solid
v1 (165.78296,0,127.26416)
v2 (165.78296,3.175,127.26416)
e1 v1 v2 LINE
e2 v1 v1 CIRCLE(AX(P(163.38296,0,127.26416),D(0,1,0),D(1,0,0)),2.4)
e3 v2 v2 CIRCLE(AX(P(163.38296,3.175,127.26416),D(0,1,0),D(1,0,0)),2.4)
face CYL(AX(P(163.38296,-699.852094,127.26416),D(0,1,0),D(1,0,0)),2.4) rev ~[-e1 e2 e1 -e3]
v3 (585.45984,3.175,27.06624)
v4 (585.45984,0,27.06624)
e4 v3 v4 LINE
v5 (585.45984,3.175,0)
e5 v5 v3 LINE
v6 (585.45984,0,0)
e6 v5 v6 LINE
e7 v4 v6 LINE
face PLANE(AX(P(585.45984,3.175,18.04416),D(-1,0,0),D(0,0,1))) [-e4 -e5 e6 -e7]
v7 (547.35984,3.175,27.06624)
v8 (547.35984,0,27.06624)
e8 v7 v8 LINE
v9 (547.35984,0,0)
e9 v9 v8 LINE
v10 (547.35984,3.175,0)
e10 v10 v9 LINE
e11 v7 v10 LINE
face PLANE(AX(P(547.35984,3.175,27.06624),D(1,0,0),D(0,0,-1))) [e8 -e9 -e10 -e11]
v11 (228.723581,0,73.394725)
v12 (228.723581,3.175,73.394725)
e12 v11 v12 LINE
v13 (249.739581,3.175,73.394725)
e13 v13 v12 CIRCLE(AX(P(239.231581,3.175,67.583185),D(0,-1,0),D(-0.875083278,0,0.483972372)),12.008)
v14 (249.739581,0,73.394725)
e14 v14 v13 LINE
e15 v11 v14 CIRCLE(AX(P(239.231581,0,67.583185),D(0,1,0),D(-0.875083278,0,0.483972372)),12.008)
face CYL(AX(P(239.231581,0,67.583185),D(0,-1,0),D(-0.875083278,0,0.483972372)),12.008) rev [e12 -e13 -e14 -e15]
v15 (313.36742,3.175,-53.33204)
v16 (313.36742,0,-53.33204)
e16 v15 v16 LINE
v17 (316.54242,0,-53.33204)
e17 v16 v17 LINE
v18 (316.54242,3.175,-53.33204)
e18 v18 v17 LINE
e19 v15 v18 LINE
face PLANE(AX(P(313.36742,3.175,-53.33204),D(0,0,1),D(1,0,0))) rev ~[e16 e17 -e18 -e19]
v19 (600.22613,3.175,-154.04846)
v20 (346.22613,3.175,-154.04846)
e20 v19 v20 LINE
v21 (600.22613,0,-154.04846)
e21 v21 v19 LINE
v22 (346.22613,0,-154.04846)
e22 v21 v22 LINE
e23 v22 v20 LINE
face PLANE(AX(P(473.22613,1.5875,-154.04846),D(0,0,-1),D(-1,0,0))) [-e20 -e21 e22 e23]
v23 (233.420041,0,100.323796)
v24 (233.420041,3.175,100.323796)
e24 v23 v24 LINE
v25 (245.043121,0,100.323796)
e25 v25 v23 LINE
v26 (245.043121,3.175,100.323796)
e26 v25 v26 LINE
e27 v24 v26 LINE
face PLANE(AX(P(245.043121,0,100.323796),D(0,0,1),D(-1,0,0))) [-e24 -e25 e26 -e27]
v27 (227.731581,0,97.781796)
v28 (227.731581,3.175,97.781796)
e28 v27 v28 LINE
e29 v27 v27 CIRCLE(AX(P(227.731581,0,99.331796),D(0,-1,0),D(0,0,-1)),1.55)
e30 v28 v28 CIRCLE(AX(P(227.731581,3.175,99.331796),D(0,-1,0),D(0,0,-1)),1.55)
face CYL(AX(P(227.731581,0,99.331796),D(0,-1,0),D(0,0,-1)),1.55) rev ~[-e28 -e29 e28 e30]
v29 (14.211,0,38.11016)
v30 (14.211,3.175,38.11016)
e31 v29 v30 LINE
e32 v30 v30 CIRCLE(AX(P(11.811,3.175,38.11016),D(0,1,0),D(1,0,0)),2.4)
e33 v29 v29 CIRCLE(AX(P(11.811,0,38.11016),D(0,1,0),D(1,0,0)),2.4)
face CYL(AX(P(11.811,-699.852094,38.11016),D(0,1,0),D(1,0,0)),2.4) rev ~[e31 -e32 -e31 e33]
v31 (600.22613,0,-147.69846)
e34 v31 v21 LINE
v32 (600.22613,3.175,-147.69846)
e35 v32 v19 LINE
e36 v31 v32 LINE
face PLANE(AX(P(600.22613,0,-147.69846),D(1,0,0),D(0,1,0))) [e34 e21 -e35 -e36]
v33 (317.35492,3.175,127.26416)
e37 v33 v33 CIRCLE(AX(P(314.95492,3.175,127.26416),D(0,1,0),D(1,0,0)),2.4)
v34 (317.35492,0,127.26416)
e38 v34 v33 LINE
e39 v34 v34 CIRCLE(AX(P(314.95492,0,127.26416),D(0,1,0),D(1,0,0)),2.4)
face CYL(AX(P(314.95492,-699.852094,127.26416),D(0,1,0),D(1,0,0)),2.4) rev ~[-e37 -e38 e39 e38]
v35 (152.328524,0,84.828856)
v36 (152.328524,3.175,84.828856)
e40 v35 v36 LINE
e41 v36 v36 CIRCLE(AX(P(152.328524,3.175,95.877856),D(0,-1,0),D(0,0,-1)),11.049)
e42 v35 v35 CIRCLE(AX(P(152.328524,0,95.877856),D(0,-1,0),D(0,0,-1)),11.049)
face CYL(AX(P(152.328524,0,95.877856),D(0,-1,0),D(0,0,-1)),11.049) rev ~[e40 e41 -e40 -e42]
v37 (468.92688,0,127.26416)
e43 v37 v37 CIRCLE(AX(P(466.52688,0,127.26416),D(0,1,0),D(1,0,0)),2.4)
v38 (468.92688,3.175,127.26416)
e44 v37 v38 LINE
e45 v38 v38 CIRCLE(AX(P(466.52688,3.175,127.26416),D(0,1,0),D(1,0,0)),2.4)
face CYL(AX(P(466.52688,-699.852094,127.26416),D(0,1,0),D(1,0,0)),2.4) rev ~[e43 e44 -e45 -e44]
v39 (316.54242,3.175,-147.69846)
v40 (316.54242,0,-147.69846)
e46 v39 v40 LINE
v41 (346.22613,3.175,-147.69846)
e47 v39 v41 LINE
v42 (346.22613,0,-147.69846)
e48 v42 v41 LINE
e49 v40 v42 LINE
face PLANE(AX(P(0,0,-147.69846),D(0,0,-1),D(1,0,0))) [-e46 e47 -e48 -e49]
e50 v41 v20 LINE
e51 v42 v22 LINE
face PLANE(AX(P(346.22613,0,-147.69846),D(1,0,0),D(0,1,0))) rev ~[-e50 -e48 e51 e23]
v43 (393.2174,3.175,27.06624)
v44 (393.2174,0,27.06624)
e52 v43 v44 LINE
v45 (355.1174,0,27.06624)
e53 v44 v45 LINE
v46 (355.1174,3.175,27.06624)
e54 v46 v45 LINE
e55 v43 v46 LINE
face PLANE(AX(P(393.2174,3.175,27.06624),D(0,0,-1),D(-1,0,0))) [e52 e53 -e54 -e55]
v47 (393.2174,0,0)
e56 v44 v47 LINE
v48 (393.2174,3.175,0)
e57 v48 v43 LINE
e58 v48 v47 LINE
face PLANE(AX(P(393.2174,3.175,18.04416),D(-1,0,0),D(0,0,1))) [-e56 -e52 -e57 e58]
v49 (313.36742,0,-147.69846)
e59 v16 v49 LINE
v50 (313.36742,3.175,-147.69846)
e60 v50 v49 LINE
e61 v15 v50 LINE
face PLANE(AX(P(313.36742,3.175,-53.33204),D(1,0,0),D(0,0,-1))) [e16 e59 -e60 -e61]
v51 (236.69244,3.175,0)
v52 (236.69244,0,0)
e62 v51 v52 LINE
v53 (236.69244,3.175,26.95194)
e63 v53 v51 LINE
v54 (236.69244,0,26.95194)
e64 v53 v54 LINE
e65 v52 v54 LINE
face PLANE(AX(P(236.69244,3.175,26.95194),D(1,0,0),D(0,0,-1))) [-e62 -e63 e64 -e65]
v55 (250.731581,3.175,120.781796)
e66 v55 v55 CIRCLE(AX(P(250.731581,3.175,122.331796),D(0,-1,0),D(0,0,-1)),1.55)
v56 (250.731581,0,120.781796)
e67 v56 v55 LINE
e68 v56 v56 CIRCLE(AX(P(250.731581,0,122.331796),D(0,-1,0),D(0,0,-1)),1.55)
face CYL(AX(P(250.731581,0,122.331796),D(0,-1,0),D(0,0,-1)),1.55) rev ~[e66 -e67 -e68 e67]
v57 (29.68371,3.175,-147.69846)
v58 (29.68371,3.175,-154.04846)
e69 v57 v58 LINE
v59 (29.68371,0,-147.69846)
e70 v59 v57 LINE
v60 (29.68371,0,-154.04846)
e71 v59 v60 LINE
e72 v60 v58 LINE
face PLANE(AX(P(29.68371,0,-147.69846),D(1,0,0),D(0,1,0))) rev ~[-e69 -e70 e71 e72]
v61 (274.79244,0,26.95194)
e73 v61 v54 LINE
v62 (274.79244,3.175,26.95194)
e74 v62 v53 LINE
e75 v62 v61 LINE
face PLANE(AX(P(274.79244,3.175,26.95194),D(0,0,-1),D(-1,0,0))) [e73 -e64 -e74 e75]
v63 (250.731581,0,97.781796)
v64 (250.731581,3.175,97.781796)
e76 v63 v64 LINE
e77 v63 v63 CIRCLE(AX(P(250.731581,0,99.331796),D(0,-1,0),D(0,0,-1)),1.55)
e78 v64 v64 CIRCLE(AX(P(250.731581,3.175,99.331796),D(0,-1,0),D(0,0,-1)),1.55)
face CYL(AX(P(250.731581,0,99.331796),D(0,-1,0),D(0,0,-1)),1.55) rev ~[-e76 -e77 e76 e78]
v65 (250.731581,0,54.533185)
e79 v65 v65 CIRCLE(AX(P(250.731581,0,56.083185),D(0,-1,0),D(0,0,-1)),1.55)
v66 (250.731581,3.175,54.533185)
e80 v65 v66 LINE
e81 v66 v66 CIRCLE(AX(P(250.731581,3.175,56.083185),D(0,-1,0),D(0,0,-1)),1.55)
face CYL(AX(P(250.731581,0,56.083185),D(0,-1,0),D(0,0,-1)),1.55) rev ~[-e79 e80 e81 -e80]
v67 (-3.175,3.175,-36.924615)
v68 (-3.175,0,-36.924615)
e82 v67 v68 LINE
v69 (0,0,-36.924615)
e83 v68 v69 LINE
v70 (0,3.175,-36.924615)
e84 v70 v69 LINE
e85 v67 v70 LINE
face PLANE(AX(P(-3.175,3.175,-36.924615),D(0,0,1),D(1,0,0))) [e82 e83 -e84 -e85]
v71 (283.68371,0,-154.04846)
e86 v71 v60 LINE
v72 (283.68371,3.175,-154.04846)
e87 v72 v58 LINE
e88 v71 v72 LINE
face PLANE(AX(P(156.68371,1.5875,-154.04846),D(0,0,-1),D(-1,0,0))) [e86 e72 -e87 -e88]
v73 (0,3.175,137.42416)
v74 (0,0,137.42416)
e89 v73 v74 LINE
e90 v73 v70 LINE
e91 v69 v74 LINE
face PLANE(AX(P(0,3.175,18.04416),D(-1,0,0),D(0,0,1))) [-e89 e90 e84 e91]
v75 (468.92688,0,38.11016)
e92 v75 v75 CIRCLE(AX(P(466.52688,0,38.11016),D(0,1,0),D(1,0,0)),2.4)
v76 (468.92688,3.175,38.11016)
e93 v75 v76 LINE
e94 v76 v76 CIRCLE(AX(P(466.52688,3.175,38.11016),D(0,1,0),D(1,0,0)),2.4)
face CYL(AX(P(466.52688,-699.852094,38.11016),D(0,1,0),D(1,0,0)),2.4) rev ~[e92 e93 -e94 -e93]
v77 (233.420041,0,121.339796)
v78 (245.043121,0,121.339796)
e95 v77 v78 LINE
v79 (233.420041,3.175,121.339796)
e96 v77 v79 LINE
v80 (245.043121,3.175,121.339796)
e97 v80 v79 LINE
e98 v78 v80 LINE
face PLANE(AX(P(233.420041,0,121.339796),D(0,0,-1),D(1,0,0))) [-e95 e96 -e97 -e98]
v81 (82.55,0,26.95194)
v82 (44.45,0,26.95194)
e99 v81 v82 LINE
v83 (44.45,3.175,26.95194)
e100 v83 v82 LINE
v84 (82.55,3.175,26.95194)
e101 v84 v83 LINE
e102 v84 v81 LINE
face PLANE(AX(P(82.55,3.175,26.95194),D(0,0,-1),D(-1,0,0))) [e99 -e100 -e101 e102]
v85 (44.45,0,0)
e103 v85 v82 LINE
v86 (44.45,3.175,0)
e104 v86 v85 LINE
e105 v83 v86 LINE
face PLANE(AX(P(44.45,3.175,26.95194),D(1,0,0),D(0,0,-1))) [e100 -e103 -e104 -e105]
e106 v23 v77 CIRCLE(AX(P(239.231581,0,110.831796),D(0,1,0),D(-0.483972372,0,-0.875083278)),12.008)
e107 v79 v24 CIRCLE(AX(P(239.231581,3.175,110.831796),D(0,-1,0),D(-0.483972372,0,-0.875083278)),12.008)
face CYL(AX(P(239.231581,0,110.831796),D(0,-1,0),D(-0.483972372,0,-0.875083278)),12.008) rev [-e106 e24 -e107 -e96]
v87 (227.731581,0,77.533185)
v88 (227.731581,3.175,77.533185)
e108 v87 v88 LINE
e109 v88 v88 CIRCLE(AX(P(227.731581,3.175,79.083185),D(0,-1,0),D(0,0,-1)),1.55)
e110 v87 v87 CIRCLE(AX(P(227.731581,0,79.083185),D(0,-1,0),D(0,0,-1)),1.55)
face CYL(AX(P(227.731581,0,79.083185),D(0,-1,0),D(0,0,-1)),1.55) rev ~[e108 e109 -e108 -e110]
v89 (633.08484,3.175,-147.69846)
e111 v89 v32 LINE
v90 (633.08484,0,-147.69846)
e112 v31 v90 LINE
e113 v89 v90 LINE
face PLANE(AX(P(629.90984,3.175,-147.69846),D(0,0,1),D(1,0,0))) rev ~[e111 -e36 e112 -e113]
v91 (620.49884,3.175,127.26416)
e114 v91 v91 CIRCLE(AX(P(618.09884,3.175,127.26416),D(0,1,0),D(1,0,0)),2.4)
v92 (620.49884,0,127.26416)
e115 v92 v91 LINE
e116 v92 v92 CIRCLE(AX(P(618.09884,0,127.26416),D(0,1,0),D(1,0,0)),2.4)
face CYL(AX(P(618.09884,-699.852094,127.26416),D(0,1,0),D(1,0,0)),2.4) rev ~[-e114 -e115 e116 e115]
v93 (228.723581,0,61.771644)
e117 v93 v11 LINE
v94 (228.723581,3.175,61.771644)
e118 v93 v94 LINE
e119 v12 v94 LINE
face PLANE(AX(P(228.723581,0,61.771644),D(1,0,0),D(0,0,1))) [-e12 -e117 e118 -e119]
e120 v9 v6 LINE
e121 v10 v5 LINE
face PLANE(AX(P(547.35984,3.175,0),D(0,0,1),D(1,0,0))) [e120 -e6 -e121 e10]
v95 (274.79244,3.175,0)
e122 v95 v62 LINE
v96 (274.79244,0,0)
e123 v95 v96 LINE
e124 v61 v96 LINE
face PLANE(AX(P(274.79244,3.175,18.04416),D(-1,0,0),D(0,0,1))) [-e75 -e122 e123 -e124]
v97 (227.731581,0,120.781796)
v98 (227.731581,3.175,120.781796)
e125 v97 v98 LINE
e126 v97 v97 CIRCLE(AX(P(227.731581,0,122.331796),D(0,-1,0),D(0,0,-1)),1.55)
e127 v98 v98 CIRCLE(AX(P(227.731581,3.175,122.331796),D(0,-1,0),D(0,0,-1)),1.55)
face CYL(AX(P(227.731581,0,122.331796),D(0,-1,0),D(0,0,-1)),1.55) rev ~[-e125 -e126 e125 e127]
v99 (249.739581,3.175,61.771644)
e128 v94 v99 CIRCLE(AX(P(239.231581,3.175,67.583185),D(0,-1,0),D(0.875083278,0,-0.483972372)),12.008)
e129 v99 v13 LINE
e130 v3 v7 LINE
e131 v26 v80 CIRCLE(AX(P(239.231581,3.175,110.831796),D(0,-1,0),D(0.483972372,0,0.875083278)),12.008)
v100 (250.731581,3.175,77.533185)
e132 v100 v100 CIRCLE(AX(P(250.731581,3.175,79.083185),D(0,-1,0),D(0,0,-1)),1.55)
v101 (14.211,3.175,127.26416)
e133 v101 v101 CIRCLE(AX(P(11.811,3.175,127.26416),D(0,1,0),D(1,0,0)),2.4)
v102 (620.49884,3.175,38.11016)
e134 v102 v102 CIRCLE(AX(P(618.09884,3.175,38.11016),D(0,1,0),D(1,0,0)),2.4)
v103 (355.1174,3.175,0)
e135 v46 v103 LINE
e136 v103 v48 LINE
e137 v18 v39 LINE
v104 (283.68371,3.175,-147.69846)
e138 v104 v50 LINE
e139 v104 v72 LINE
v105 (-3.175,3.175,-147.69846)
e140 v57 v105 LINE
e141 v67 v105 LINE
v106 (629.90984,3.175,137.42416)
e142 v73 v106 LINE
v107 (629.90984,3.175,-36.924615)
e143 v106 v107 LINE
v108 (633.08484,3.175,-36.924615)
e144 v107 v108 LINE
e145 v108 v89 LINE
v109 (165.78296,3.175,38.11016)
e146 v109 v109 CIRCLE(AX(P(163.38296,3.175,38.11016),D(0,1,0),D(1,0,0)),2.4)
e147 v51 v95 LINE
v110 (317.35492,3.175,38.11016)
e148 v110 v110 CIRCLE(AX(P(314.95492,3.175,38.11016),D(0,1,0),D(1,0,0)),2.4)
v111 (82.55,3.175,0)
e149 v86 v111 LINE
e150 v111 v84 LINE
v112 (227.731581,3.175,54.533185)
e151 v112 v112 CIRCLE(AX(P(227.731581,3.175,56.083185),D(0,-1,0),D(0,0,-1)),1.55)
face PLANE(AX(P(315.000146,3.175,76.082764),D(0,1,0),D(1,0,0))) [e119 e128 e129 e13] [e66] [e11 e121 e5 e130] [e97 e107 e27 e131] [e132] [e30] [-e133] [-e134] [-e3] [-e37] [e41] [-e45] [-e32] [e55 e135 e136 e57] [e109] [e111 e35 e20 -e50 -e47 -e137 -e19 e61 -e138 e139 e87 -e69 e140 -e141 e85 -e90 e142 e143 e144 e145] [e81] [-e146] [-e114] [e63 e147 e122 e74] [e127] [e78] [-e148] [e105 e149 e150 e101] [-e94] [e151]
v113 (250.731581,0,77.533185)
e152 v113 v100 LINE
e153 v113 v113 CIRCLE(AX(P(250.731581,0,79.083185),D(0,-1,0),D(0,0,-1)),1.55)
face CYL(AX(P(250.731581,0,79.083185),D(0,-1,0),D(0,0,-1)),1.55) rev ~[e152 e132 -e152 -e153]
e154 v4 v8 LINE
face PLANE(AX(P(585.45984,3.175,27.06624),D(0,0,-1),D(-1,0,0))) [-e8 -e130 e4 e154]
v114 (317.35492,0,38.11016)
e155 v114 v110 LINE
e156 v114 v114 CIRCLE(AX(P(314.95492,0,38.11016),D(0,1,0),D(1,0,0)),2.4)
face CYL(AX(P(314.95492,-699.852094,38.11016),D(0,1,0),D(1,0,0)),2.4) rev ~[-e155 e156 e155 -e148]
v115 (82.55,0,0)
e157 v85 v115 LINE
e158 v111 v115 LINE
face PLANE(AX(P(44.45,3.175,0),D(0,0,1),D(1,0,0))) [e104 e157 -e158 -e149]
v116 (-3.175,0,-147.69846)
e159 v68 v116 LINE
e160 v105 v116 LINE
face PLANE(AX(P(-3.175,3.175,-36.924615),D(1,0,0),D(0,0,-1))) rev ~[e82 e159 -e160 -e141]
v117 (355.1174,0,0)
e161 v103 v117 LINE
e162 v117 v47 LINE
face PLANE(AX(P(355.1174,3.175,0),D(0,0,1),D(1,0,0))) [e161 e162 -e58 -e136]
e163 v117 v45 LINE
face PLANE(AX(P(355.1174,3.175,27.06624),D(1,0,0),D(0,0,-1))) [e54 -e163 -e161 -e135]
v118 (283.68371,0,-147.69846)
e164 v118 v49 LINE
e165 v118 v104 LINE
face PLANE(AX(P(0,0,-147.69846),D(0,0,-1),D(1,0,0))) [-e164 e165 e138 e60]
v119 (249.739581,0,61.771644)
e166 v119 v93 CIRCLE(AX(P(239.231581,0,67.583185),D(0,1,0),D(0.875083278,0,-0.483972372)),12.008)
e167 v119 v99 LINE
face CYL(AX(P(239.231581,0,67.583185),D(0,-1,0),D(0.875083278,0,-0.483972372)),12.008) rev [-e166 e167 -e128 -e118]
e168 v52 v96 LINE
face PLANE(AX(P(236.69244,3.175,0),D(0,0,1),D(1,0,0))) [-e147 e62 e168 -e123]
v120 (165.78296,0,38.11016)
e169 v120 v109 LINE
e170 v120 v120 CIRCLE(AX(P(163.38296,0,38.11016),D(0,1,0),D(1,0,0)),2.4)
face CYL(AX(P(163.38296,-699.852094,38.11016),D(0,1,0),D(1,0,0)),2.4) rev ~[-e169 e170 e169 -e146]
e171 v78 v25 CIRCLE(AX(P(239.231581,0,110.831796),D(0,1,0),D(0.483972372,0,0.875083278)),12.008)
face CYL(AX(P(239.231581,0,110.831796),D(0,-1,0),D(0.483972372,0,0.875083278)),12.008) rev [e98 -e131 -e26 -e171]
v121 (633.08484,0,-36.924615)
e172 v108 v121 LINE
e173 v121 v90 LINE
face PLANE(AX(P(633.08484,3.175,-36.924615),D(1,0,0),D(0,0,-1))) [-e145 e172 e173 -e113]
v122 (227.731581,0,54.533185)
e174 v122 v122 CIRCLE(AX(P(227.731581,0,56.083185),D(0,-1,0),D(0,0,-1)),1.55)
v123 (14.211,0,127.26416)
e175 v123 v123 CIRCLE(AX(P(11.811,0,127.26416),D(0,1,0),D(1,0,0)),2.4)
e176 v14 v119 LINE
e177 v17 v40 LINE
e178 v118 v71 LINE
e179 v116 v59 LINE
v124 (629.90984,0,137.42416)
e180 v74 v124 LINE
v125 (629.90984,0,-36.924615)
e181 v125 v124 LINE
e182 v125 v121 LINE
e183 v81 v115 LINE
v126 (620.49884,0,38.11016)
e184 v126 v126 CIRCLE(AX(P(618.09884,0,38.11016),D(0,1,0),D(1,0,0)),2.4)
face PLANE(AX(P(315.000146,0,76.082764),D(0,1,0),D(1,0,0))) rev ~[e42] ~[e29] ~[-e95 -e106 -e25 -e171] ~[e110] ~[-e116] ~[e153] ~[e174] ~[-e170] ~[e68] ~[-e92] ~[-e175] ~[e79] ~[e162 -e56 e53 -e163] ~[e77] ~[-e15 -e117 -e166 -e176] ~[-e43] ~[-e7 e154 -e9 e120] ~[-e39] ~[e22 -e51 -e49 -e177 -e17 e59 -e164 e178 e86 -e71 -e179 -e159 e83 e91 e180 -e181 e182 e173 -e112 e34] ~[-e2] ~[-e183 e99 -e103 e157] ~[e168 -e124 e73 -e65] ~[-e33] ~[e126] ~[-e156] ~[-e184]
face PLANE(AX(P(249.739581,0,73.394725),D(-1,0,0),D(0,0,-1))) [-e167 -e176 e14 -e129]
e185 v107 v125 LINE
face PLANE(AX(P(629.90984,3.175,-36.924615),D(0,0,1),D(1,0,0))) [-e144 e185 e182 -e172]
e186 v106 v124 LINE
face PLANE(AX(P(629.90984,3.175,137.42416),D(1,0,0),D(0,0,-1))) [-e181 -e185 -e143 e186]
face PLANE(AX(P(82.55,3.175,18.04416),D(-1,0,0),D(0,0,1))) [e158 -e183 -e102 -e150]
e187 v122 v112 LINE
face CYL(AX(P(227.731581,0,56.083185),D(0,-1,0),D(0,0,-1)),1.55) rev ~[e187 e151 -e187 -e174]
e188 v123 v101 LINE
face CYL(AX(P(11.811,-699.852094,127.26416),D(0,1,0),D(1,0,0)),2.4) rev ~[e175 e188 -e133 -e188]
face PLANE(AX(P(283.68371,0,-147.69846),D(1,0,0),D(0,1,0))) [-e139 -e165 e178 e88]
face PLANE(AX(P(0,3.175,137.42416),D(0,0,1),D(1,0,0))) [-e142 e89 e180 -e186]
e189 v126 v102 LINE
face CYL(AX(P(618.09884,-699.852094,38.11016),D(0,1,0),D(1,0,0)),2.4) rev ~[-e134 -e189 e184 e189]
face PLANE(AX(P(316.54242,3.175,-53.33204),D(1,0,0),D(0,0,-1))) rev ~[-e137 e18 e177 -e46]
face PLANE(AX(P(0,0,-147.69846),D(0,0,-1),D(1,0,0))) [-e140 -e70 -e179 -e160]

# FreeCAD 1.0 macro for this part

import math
import FreeCAD as App
import Part
import Sketcher
from FreeCAD import Vector
Q = App.Units.Quantity

doc = App.newDocument("Part")
body = doc.addObject("PartDesign::Body", "Body")

# Sketch on XZ plane
sketch1 = body.newObject("Sketcher::SketchObject", "Sketch")
sketch1.AttachmentSupport = (doc.getObject("XZ_Plane"), [""])
sketch1.MapMode = "FlatFace"
sketch1.addGeometry([
    Part.LineSegment(Vector(0, -148, 0), Vector(0, 0, 0)),
    Part.LineSegment(Vector(0, 0, 0), Vector(630, 0, 0)),
    Part.LineSegment(Vector(630, 0, 0), Vector(630, -148, 0)),
    Part.LineSegment(Vector(630, -148, 0), Vector(0, -148, 0)),
], False)
sketch1.addConstraint([
    Sketcher.Constraint("Coincident", 0, 2, 1, 1),
    Sketcher.Constraint("Coincident", 1, 2, 2, 1),
    Sketcher.Constraint("Coincident", 2, 2, 3, 1),
    Sketcher.Constraint("Coincident", 3, 2, 0, 1),
    Sketcher.Constraint("Vertical", 0),
    Sketcher.Constraint("Horizontal", 1),
    Sketcher.Constraint("Vertical", 2),
    Sketcher.Constraint("Horizontal", 3),
    Sketcher.Constraint("Coincident", 0, 2, -1, 1),
    Sketcher.Constraint("DistanceX", 1, 1, 1, 2, Q("24.7996 in")),
    Sketcher.Constraint("DistanceY", 0, 1, 0, 2, Q("5.8149 in")),
])
pad1 = body.newObject("PartDesign::Pad", "Pad")
pad1.Profile = sketch1
pad1.Length = Q("0.125 in")
pad1.Reversed = True

# Sketch on XY plane
sketch2 = body.newObject("Sketcher::SketchObject", "Sketch001")
sketch2.AttachmentSupport = (doc.getObject("XY_Plane"), [""])
sketch2.MapMode = "FlatFace"
sketch2.AttachmentOffset = App.Placement(Vector(0, 0, -5.8149 * 25.4), App.Rotation())
sketch2.addGeometry([
    Part.LineSegment(Vector(600.2, 3.2, 0), Vector(600.2, 0, 0)),  # 0
    Part.LineSegment(Vector(600.2, 0, 0), Vector(346.2, 0, 0)),  # 1
    Part.LineSegment(Vector(346.2, 0, 0), Vector(346.2, 3.2, 0)),  # 2
    Part.LineSegment(Vector(346.2, 3.2, 0), Vector(600.2, 3.2, 0)),  # 3
    Part.LineSegment(Vector(283.7, 3.2, 0), Vector(283.7, 0, 0)),  # 4
    Part.LineSegment(Vector(283.7, 0, 0), Vector(29.7, 0, 0)),  # 5
    Part.LineSegment(Vector(29.7, 0, 0), Vector(29.7, 3.2, 0)),  # 6
    Part.LineSegment(Vector(29.7, 3.2, 0), Vector(283.7, 3.2, 0)),  # 7
], False)
sketch2.addConstraint([
    Sketcher.Constraint("Coincident", 0, 2, 1, 1),
    Sketcher.Constraint("Coincident", 1, 2, 2, 1),
    Sketcher.Constraint("Coincident", 2, 2, 3, 1),
    Sketcher.Constraint("Coincident", 3, 2, 0, 1),
    Sketcher.Constraint("Coincident", 4, 2, 5, 1),
    Sketcher.Constraint("Coincident", 5, 2, 6, 1),
    Sketcher.Constraint("Coincident", 6, 2, 7, 1),
    Sketcher.Constraint("Coincident", 7, 2, 4, 1),
    Sketcher.Constraint("Vertical", 0),
    Sketcher.Constraint("Horizontal", 1),
    Sketcher.Constraint("Vertical", 2),
    Sketcher.Constraint("Horizontal", 3),
    Sketcher.Constraint("Vertical", 4),
    Sketcher.Constraint("Horizontal", 5),
    Sketcher.Constraint("Vertical", 6),
    Sketcher.Constraint("Horizontal", 7),
    Sketcher.Constraint("PointOnObject", 0, 2, -1),
    Sketcher.Constraint("PointOnObject", 4, 2, -1),
    Sketcher.Constraint("Horizontal", 3, 2, 6, 2),
    Sketcher.Constraint("Equal", 3, 5),
    Sketcher.Constraint("DistanceX", 1, 2, 1, 1, Q("10 in")),
    Sketcher.Constraint("DistanceY", 0, 2, 0, 1, Q("0.125 in")),
    Sketcher.Constraint("DistanceX", 4, 2, 1, 2, Q("2.4623 in")),
    Sketcher.Constraint("DistanceX", -1, 1, 0, 2, Q("600.22613 mm")),
])
pad2 = body.newObject("PartDesign::Pad", "Pad001")
pad2.Profile = sketch2
pad2.Length = Q("0.25 in")
pad2.Reversed = True

# Sketch on XZ plane
sketch3 = body.newObject("Sketcher::SketchObject", "Sketch002")
sketch3.AttachmentSupport = (doc.getObject("XZ_Plane"), [""])
sketch3.MapMode = "FlatFace"
sketch3.AttachmentOffset = App.Placement(Vector(0, 0, -0.125 * 25.4), App.Rotation())
sketch3.addGeometry([
    Part.LineSegment(Vector(313.4, -242.1, 0), Vector(313.4, -53.3, 0)),
    Part.LineSegment(Vector(313.4, -53.3, 0), Vector(316.5, -53.3, 0)),
    Part.LineSegment(Vector(316.5, -53.3, 0), Vector(316.5, -242.1, 0)),
    Part.LineSegment(Vector(316.5, -242.1, 0), Vector(313.4, -242.1, 0)),
], False)
sketch3.addConstraint([
    Sketcher.Constraint("Coincident", 0, 2, 1, 1),
    Sketcher.Constraint("Coincident", 1, 2, 2, 1),
    Sketcher.Constraint("Coincident", 2, 2, 3, 1),
    Sketcher.Constraint("Coincident", 3, 2, 0, 1),
    Sketcher.Constraint("Vertical", 0),
    Sketcher.Constraint("Horizontal", 1),
    Sketcher.Constraint("Vertical", 2),
    Sketcher.Constraint("Horizontal", 3),
    Sketcher.Constraint("DistanceX", 1, 1, 1, 2, Q("0.125 in")),
    Sketcher.Constraint("DistanceX", -1, 1, 0, 2, Q("12.3373 in")),
    Sketcher.Constraint("DistanceY", 0, 1, 0, 2, Q("188.73284 mm")),
    Sketcher.Constraint("DistanceY", 0, 2, -1, 1, Q("53.33204 mm")),
])
pocket1 = body.newObject("PartDesign::Pocket", "Pocket")
pocket1.Profile = sketch3
pocket1.Length = Q("0.125 in")
pocket1.Reversed = True

# Sketch on XZ plane
sketch4 = body.newObject("Sketcher::SketchObject", "Sketch003")
sketch4.AttachmentSupport = (doc.getObject("XZ_Plane"), [""])
sketch4.MapMode = "FlatFace"
sketch4.AttachmentOffset = App.Placement(Vector(0, 0, -0.125 * 25.4), App.Rotation())
sketch4.addGeometry([
    Part.LineSegment(Vector(629.9, -147.7, 0), Vector(629.9, -36.9, 0)),  # 0
    Part.LineSegment(Vector(629.9, -36.9, 0), Vector(633.1, -36.9, 0)),  # 1
    Part.LineSegment(Vector(633.1, -36.9, 0), Vector(633.1, -147.7, 0)),  # 2
    Part.LineSegment(Vector(633.1, -147.7, 0), Vector(629.9, -147.7, 0)),  # 3
    Part.LineSegment(Vector(-3.2, -147.7, 0), Vector(-3.2, -36.9, 0)),  # 4
    Part.LineSegment(Vector(-3.2, -36.9, 0), Vector(0, -36.9, 0)),  # 5
    Part.LineSegment(Vector(0, -36.9, 0), Vector(0, -147.7, 0)),  # 6
    Part.LineSegment(Vector(0, -147.7, 0), Vector(-3.2, -147.7, 0)),  # 7
], False)
sketch4.addConstraint([
    Sketcher.Constraint("Coincident", 0, 2, 1, 1),
    Sketcher.Constraint("Coincident", 1, 2, 2, 1),
    Sketcher.Constraint("Coincident", 2, 2, 3, 1),
    Sketcher.Constraint("Coincident", 3, 2, 0, 1),
    Sketcher.Constraint("Coincident", 4, 2, 5, 1),
    Sketcher.Constraint("Coincident", 5, 2, 6, 1),
    Sketcher.Constraint("Coincident", 6, 2, 7, 1),
    Sketcher.Constraint("Coincident", 7, 2, 4, 1),
    Sketcher.Constraint("Vertical", 0),
    Sketcher.Constraint("Horizontal", 1),
    Sketcher.Constraint("Vertical", 2),
    Sketcher.Constraint("Horizontal", 3),
    Sketcher.Constraint("Vertical", 4),
    Sketcher.Constraint("Horizontal", 5),
    Sketcher.Constraint("Vertical", 6),
    Sketcher.Constraint("Horizontal", 7),
    Sketcher.Constraint("PointOnObject", 5, 2, -2),
    Sketcher.Constraint("Horizontal", 1, 2, 4, 2),
    Sketcher.Constraint("Horizontal", 3, 2, 6, 2),
    Sketcher.Constraint("Equal", 3, 5),
    Sketcher.Constraint("DistanceX", 1, 1, 1, 2, Q("0.125 in")),
    Sketcher.Constraint("DistanceX", -1, 1, 0, 2, Q("24.7996 in")),
    Sketcher.Constraint("DistanceY", 2, 2, -1, 1, Q("5.8149 in")),
    Sketcher.Constraint("DistanceY", 0, 1, 0, 2, Q("110.773845 mm")),
])
pad3 = body.newObject("PartDesign::Pad", "Pad002")
pad3.Profile = sketch4
pad3.Length = Q("0.125 in")

# Sketch on XZ plane
sketch5 = body.newObject("Sketcher::SketchObject", "Sketch004")
sketch5.AttachmentSupport = (doc.getObject("XZ_Plane"), [""])
sketch5.MapMode = "FlatFace"
sketch5.AttachmentOffset = App.Placement(Vector(0, 0, -0.125 * 25.4), App.Rotation())
sketch5.addGeometry([
    Part.LineSegment(Vector(0, 0, 0), Vector(0, 18, 0)),
    Part.LineSegment(Vector(0, 18, 0), Vector(630, 18, 0)),
    Part.LineSegment(Vector(630, 18, 0), Vector(630, 0, 0)),
    Part.LineSegment(Vector(630, 0, 0), Vector(0, 0, 0)),
], False)
sketch5.addConstraint([
    Sketcher.Constraint("Coincident", 0, 2, 1, 1),
    Sketcher.Constraint("Coincident", 1, 2, 2, 1),
    Sketcher.Constraint("Coincident", 2, 2, 3, 1),
    Sketcher.Constraint("Coincident", 3, 2, 0, 1),
    Sketcher.Constraint("Vertical", 0),
    Sketcher.Constraint("Horizontal", 1),
    Sketcher.Constraint("Vertical", 2),
    Sketcher.Constraint("Horizontal", 3),
    Sketcher.Constraint("Coincident", 3, 2, -1, 1),
    Sketcher.Constraint("DistanceX", 1, 1, 1, 2, Q("24.7996 in")),
    Sketcher.Constraint("DistanceY", 0, 1, 0, 2, Q("0.7104 in")),
])
pad4 = body.newObject("PartDesign::Pad", "Pad003")
pad4.Profile = sketch5
pad4.Length = Q("0.125 in")

# Sketch on XZ plane
sketch6 = body.newObject("Sketcher::SketchObject", "Sketch005")
sketch6.AttachmentSupport = (doc.getObject("XZ_Plane"), [""])
sketch6.MapMode = "FlatFace"
sketch6.AttachmentOffset = App.Placement(Vector(0, 0, -0.125 * 25.4), App.Rotation())
sketch6.addGeometry([
    Part.LineSegment(Vector(355, 0, 0), Vector(355, 18, 0)),  # 0
    Part.LineSegment(Vector(355, 18, 0), Vector(393, 18, 0)),  # 1
    Part.LineSegment(Vector(393, 18, 0), Vector(393, 0, 0)),  # 2
    Part.LineSegment(Vector(393, 0, 0), Vector(355, 0, 0)),  # 3
    Part.LineSegment(Vector(237, 0, 0), Vector(237, 18, 0)),  # 4
    Part.LineSegment(Vector(237, 18, 0), Vector(275, 18, 0)),  # 5
    Part.LineSegment(Vector(275, 18, 0), Vector(275, 0, 0)),  # 6
    Part.LineSegment(Vector(275, 0, 0), Vector(237, 0, 0)),  # 7
    Part.LineSegment(Vector(547, 0, 0), Vector(547, 36, 0)),  # 8
    Part.LineSegment(Vector(547, 36, 0), Vector(585, 36, 0)),  # 9
    Part.LineSegment(Vector(585, 36, 0), Vector(585, 0, 0)),  # 10
    Part.LineSegment(Vector(585, 0, 0), Vector(547, 0, 0)),  # 11
    Part.LineSegment(Vector(44, 0, 0), Vector(44, 36, 0)),  # 12
    Part.LineSegment(Vector(44, 36, 0), Vector(83, 36, 0)),  # 13
    Part.LineSegment(Vector(83, 36, 0), Vector(83, 0, 0)),  # 14
    Part.LineSegment(Vector(83, 0, 0), Vector(44, 0, 0)),  # 15
], False)
sketch6.addConstraint([
    Sketcher.Constraint("Coincident", 0, 2, 1, 1),
    Sketcher.Constraint("Coincident", 1, 2, 2, 1),
    Sketcher.Constraint("Coincident", 2, 2, 3, 1),
    Sketcher.Constraint("Coincident", 3, 2, 0, 1),
    Sketcher.Constraint("Coincident", 4, 2, 5, 1),
    Sketcher.Constraint("Coincident", 5, 2, 6, 1),
    Sketcher.Constraint("Coincident", 6, 2, 7, 1),
    Sketcher.Constraint("Coincident", 7, 2, 4, 1),
    Sketcher.Constraint("Coincident", 8, 2, 9, 1),
    Sketcher.Constraint("Coincident", 9, 2, 10, 1),
    Sketcher.Constraint("Coincident", 10, 2, 11, 1),
    Sketcher.Constraint("Coincident", 11, 2, 8, 1),
    Sketcher.Constraint("Coincident", 12, 2, 13, 1),
    Sketcher.Constraint("Coincident", 13, 2, 14, 1),
    Sketcher.Constraint("Coincident", 14, 2, 15, 1),
    Sketcher.Constraint("Coincident", 15, 2, 12, 1),
    Sketcher.Constraint("Vertical", 0),
    Sketcher.Constraint("Horizontal", 1),
    Sketcher.Constraint("Vertical", 2),
    Sketcher.Constraint("Horizontal", 3),
    Sketcher.Constraint("Vertical", 4),
    Sketcher.Constraint("Horizontal", 5),
    Sketcher.Constraint("Vertical", 6),
    Sketcher.Constraint("Horizontal", 7),
    Sketcher.Constraint("Vertical", 8),
    Sketcher.Constraint("Horizontal", 9),
    Sketcher.Constraint("Vertical", 10),
    Sketcher.Constraint("Horizontal", 11),
    Sketcher.Constraint("Vertical", 12),
    Sketcher.Constraint("Horizontal", 13),
    Sketcher.Constraint("Vertical", 14),
    Sketcher.Constraint("Horizontal", 15),
    Sketcher.Constraint("PointOnObject", 2, 2, -1),
    Sketcher.Constraint("PointOnObject", 6, 2, -1),
    Sketcher.Constraint("PointOnObject", 10, 2, -1),
    Sketcher.Constraint("PointOnObject", 14, 2, -1),
    Sketcher.Constraint("Horizontal", 1, 2, 4, 2),
    Sketcher.Constraint("Horizontal", 9, 2, 12, 2),
    Sketcher.Constraint("Equal", 3, 5),
    Sketcher.Constraint("Equal", 7, 9),
    Sketcher.Constraint("Equal", 11, 13),
    Sketcher.Constraint("DistanceX", 1, 1, 1, 2, Q("1.5 in")),
    Sketcher.Constraint("DistanceX", -1, 1, 12, 2, Q("1.75 in")),
    Sketcher.Constraint("DistanceY", 0, 1, 0, 2, Q("0.7104 in")),
    Sketcher.Constraint("DistanceY", 8, 1, 8, 2, Q("1.4208 in")),
    Sketcher.Constraint("DistanceX", -1, 1, 0, 2, Q("13.981 in")),
    Sketcher.Constraint("DistanceX", 5, 2, 8, 2, Q("10.731 in")),
    Sketcher.Constraint("DistanceX", -1, 1, 4, 2, Q("9.3186 in")),
])
pocket2 = body.newObject("PartDesign::Pocket", "Pocket001")
pocket2.Profile = sketch6
pocket2.Type = "ThroughAll"
pocket2.Reversed = True

# Sketch on XZ plane
sketch7 = body.newObject("Sketcher::SketchObject", "Sketch006")
sketch7.AttachmentSupport = (doc.getObject("XZ_Plane"), [""])
sketch7.MapMode = "FlatFace"
sketch7.AttachmentOffset = App.Placement(Vector(0, 0, -0.125 * 25.4), App.Rotation())
sketch7.addGeometry([
    Part.LineSegment(Vector(0, 18, 0), Vector(0, 137, 0)),  # 0
    Part.LineSegment(Vector(0, 137, 0), Vector(630, 137, 0)),  # 1
    Part.LineSegment(Vector(630, 137, 0), Vector(630, 18, 0)),  # 2
    Part.LineSegment(Vector(630, 18, 0), Vector(585, 18, 0)),  # 3
    Part.LineSegment(Vector(585, 18, 0), Vector(585, 27, 0)),  # 4
    Part.LineSegment(Vector(585, 27, 0), Vector(547, 27, 0)),  # 5
    Part.LineSegment(Vector(547, 27, 0), Vector(547, 18, 0)),  # 6
    Part.LineSegment(Vector(547, 18, 0), Vector(393, 18, 0)),  # 7
    Part.LineSegment(Vector(393, 18, 0), Vector(393, 27, 0)),  # 8
    Part.LineSegment(Vector(393, 27, 0), Vector(355, 27, 0)),  # 9
    Part.LineSegment(Vector(355, 27, 0), Vector(355, 18, 0)),  # 10
    Part.LineSegment(Vector(355, 18, 0), Vector(275, 18, 0)),  # 11
    Part.LineSegment(Vector(275, 18, 0), Vector(275, 27, 0)),  # 12
    Part.LineSegment(Vector(275, 27, 0), Vector(237, 27, 0)),  # 13
    Part.LineSegment(Vector(237, 27, 0), Vector(237, 18, 0)),  # 14
    Part.LineSegment(Vector(237, 18, 0), Vector(83, 18, 0)),  # 15
    Part.LineSegment(Vector(83, 18, 0), Vector(83, 27, 0)),  # 16
    Part.LineSegment(Vector(83, 27, 0), Vector(44, 27, 0)),  # 17
    Part.LineSegment(Vector(44, 27, 0), Vector(44, 18, 0)),  # 18
    Part.LineSegment(Vector(44, 18, 0), Vector(0, 18, 0)),  # 19
], False)
sketch7.addConstraint([
    Sketcher.Constraint("Coincident", 0, 2, 1, 1),
    Sketcher.Constraint("Coincident", 1, 2, 2, 1),
    Sketcher.Constraint("Coincident", 2, 2, 3, 1),
    Sketcher.Constraint("Coincident", 3, 2, 4, 1),
    Sketcher.Constraint("Coincident", 4, 2, 5, 1),
    Sketcher.Constraint("Coincident", 5, 2, 6, 1),
    Sketcher.Constraint("Coincident", 6, 2, 7, 1),
    Sketcher.Constraint("Coincident", 7, 2, 8, 1),
    Sketcher.Constraint("Coincident", 8, 2, 9, 1),
    Sketcher.Constraint("Coincident", 9, 2, 10, 1),
    Sketcher.Constraint("Coincident", 10, 2, 11, 1),
    Sketcher.Constraint("Coincident", 11, 2, 12, 1),
    Sketcher.Constraint("Coincident", 12, 2, 13, 1),
    Sketcher.Constraint("Coincident", 13, 2, 14, 1),
    Sketcher.Constraint("Coincident", 14, 2, 15, 1),
    Sketcher.Constraint("Coincident", 15, 2, 16, 1),
    Sketcher.Constraint("Coincident", 16, 2, 17, 1),
    Sketcher.Constraint("Coincident", 17, 2, 18, 1),
    Sketcher.Constraint("Coincident", 18, 2, 19, 1),
    Sketcher.Constraint("Coincident", 19, 2, 0, 1),
    Sketcher.Constraint("Vertical", 0),
    Sketcher.Constraint("Horizontal", 1),
    Sketcher.Constraint("Vertical", 2),
    Sketcher.Constraint("Horizontal", 3),
    Sketcher.Constraint("Vertical", 4),
    Sketcher.Constraint("Horizontal", 5),
    Sketcher.Constraint("Vertical", 6),
    Sketcher.Constraint("Horizontal", 7),
    Sketcher.Constraint("Vertical", 8),
    Sketcher.Constraint("Horizontal", 9),
    Sketcher.Constraint("Vertical", 10),
    Sketcher.Constraint("Horizontal", 11),
    Sketcher.Constraint("Vertical", 12),
    Sketcher.Constraint("Horizontal", 13),
    Sketcher.Constraint("Vertical", 14),
    Sketcher.Constraint("Horizontal", 15),
    Sketcher.Constraint("Vertical", 16),
    Sketcher.Constraint("Horizontal", 17),
    Sketcher.Constraint("Vertical", 18),
    Sketcher.Constraint("Horizontal", 19),
    Sketcher.Constraint("PointOnObject", 0, 2, -2),
    Sketcher.Constraint("Horizontal", 3, 2, 6, 2),
    Sketcher.Constraint("Horizontal", 5, 2, 8, 2),
    Sketcher.Constraint("Horizontal", 7, 2, 10, 2),
    Sketcher.Constraint("Horizontal", 11, 2, 14, 2),
    Sketcher.Constraint("Horizontal", 13, 2, 16, 2),
    Sketcher.Constraint("Horizontal", 15, 2, 18, 2),
    Sketcher.Constraint("Equal", 5, 9),
    Sketcher.Constraint("Equal", 9, 13),
    Sketcher.Constraint("Equal", 7, 15),
    Sketcher.Constraint("Equal", 13, 17),
    Sketcher.Constraint("Equal", 3, 19),
    Sketcher.Constraint("DistanceX", 5, 2, 5, 1, Q("1.5 in")),
    Sketcher.Constraint("DistanceY", 0, 1, 0, 2, Q("4.7 in")),
    Sketcher.Constraint("DistanceX", 3, 2, 3, 1, Q("1.75 in")),
    Sketcher.Constraint("DistanceX", 1, 1, 1, 2, Q("24.7996 in")),
    Sketcher.Constraint("DistanceX", 7, 2, 7, 1, Q("6.0686 in")),
    Sketcher.Constraint("DistanceY", 4, 1, 4, 2, Q("0.3552 in")),
    Sketcher.Constraint("DistanceY", 12, 1, 12, 2, Q("0.3507 in")),
    Sketcher.Constraint("DistanceY", -1, 1, 0, 2, Q("5.4104 in")),
])
pad5 = body.newObject("PartDesign::Pad", "Pad004")
pad5.Profile = sketch7
pad5.Length = Q("0.125 in")

# Sketch on XZ plane
sketch8 = body.newObject("Sketcher::SketchObject", "Sketch007")
sketch8.AttachmentSupport = (doc.getObject("XZ_Plane"), [""])
sketch8.MapMode = "FlatFace"
sketch8.addGeometry([
    Part.Circle(Vector(227.7, 122.3, 0), Vector(0, 0, 1), 1.6),  # 0
    Part.Circle(Vector(250.7, 122.3, 0), Vector(0, 0, 1), 1.6),  # 1
    Part.Circle(Vector(227.7, 99.3, 0), Vector(0, 0, 1), 1.6),  # 2
    Part.Circle(Vector(250.7, 99.3, 0), Vector(0, 0, 1), 1.6),  # 3
    Part.Circle(Vector(152.3, 95.9, 0), Vector(0, 0, 1), 11),  # 4
    Part.Circle(Vector(227.7, 79.1, 0), Vector(0, 0, 1), 1.6),  # 5
    Part.Circle(Vector(227.7, 56.1, 0), Vector(0, 0, 1), 1.6),  # 6
    Part.Circle(Vector(250.7, 56.1, 0), Vector(0, 0, 1), 1.6),  # 7
    Part.Circle(Vector(250.7, 79.1, 0), Vector(0, 0, 1), 1.6),  # 8
    Part.LineSegment(Vector(233.4, 100.3, 0), Vector(245, 100.3, 0)),  # 9
    Part.ArcOfCircle(Part.Circle(Vector(239.2, 110.8, 0), Vector(0, 0, 1), 12), math.radians(-61), math.radians(61)),  # 10
    Part.LineSegment(Vector(245, 121.3, 0), Vector(233.4, 121.3, 0)),  # 11
    Part.ArcOfCircle(Part.Circle(Vector(239.2, 110.8, 0), Vector(0, 0, 1), 12), math.radians(119), math.radians(241)),  # 12
    Part.LineSegment(Vector(249.7, 61.8, 0), Vector(249.7, 73.4, 0)),  # 13
    Part.ArcOfCircle(Part.Circle(Vector(239.2, 67.6, 0), Vector(0, 0, 1), 12), math.radians(29), math.radians(151)),  # 14
    Part.LineSegment(Vector(228.7, 73.4, 0), Vector(228.7, 61.8, 0)),  # 15
    Part.ArcOfCircle(Part.Circle(Vector(239.2, 67.6, 0), Vector(0, 0, 1), 12), math.radians(-151), math.radians(-29)),  # 16
], False)
sketch8.addConstraint([
    Sketcher.Constraint("Coincident", 9, 2, 10, 1),
    Sketcher.Constraint("Coincident", 10, 2, 11, 1),
    Sketcher.Constraint("Coincident", 11, 2, 12, 1),
    Sketcher.Constraint("Coincident", 12, 2, 9, 1),
    Sketcher.Constraint("Coincident", 13, 2, 14, 1),
    Sketcher.Constraint("Coincident", 14, 2, 15, 1),
    Sketcher.Constraint("Coincident", 15, 2, 16, 1),
    Sketcher.Constraint("Coincident", 16, 2, 13, 1),
    Sketcher.Constraint("Horizontal", 9),
    Sketcher.Constraint("Horizontal", 11),
    Sketcher.Constraint("Vertical", 13),
    Sketcher.Constraint("Vertical", 15),
    Sketcher.Constraint("Coincident", 12, 3, 10, 3),
    Sketcher.Constraint("Coincident", 16, 3, 14, 3),
    Sketcher.Constraint("Equal", 0, 1),
    Sketcher.Constraint("Equal", 1, 2),
    Sketcher.Constraint("Equal", 2, 3),
    Sketcher.Constraint("Equal", 3, 5),
    Sketcher.Constraint("Equal", 5, 6),
    Sketcher.Constraint("Equal", 6, 7),
    Sketcher.Constraint("Equal", 7, 8),
    Sketcher.Constraint("Equal", 10, 12),
    Sketcher.Constraint("Equal", 12, 14),
    Sketcher.Constraint("Equal", 14, 16),
    Sketcher.Constraint("Horizontal", 0, 3, 1, 3),
    Sketcher.Constraint("Horizontal", 2, 3, 3, 3),
    Sketcher.Constraint("Horizontal", 6, 3, 7, 3),
    Sketcher.Constraint("Horizontal", 5, 3, 8, 3),
    Sketcher.Constraint("Horizontal", 13, 2, 14, 2),
    Sketcher.Constraint("Vertical", 0, 3, 2, 3),
    Sketcher.Constraint("Vertical", 1, 3, 3, 3),
    Sketcher.Constraint("Vertical", 2, 3, 5, 3),
    Sketcher.Constraint("Vertical", 5, 3, 6, 3),
    Sketcher.Constraint("Vertical", 3, 3, 7, 3),
    Sketcher.Constraint("Vertical", 7, 3, 8, 3),
    Sketcher.Constraint("Vertical", 12, 3, 14, 3),
    Sketcher.Constraint("Vertical", 9, 2, 10, 2),
    Sketcher.Constraint("Equal", 11, 13),
    Sketcher.Constraint("Diameter", 4, Q("0.87 in")),
    Sketcher.Constraint("Diameter", 0, Q("3.1 mm")),
    Sketcher.Constraint("Radius", 10, Q("12.008 mm")),
    Sketcher.Constraint("DistanceX", 9, 1, 9, 2, Q("11.62308 mm")),
    Sketcher.Constraint("DistanceX", 0, 3, 1, 3, Q("23 mm")),
    Sketcher.Constraint("DistanceY", 2, 3, 0, 3, Q("23 mm")),
    Sketcher.Constraint("DistanceY", 6, 3, 5, 3, Q("23 mm")),
    Sketcher.Constraint("DistanceX", 0, 3, 10, 3, Q("11.5 mm")),
    Sketcher.Constraint("DistanceY", 10, 3, 0, 3, Q("11.5 mm")),
    Sketcher.Constraint("DistanceY", 6, 3, 14, 3, Q("11.5 mm")),
    Sketcher.Constraint("DistanceX", -1, 1, 0, 3, Q("227.731581 mm")),
    Sketcher.Constraint("DistanceY", 4, 3, 2, 3, Q("3.45394 mm")),
    Sketcher.Constraint("DistanceY", 5, 3, 2, 3, Q("20.248611 mm")),
    Sketcher.Constraint("DistanceY", -1, 1, 0, 3, Q("122.331796 mm")),
    Sketcher.Constraint("DistanceX", -1, 1, 4, 3, Q("152.328524 mm")),
])
pocket3 = body.newObject("PartDesign::Pocket", "Pocket002")
pocket3.Profile = sketch8
pocket3.Type = "ThroughAll"

# Sketch on XZ plane
sketch9 = body.newObject("Sketcher::SketchObject", "Sketch008")
sketch9.AttachmentSupport = (doc.getObject("XZ_Plane"), [""])
sketch9.MapMode = "FlatFace"
sketch9.addGeometry([
    Part.Circle(Vector(618.1, 38.1, 0), Vector(0, 0, 1), 2.4),  # 0
    Part.Circle(Vector(466.5, 38.1, 0), Vector(0, 0, 1), 2.4),  # 1
    Part.Circle(Vector(618.1, 127.3, 0), Vector(0, 0, 1), 2.4),  # 2
    Part.Circle(Vector(466.5, 127.3, 0), Vector(0, 0, 1), 2.4),  # 3
    Part.Circle(Vector(315, 127.3, 0), Vector(0, 0, 1), 2.4),  # 4
    Part.Circle(Vector(315, 38.1, 0), Vector(0, 0, 1), 2.4),  # 5
    Part.Circle(Vector(163.4, 38.1, 0), Vector(0, 0, 1), 2.4),  # 6
    Part.Circle(Vector(11.8, 38.1, 0), Vector(0, 0, 1), 2.4),  # 7
    Part.Circle(Vector(11.8, 127.3, 0), Vector(0, 0, 1), 2.4),  # 8
    Part.Circle(Vector(163.4, 127.3, 0), Vector(0, 0, 1), 2.4),  # 9
], False)
sketch9.addConstraint([
    Sketcher.Constraint("Equal", 0, 1),
    Sketcher.Constraint("Equal", 1, 2),
    Sketcher.Constraint("Equal", 2, 3),
    Sketcher.Constraint("Equal", 3, 4),
    Sketcher.Constraint("Equal", 4, 5),
    Sketcher.Constraint("Equal", 5, 6),
    Sketcher.Constraint("Equal", 6, 7),
    Sketcher.Constraint("Equal", 7, 8),
    Sketcher.Constraint("Equal", 8, 9),
    Sketcher.Constraint("Horizontal", 0, 3, 1, 3),
    Sketcher.Constraint("Horizontal", 2, 3, 3, 3),
    Sketcher.Constraint("Horizontal", 3, 3, 4, 3),
    Sketcher.Constraint("Horizontal", 1, 3, 5, 3),
    Sketcher.Constraint("Horizontal", 5, 3, 6, 3),
    Sketcher.Constraint("Horizontal", 6, 3, 7, 3),
    Sketcher.Constraint("Horizontal", 4, 3, 8, 3),
    Sketcher.Constraint("Horizontal", 8, 3, 9, 3),
    Sketcher.Constraint("Vertical", 0, 3, 2, 3),
    Sketcher.Constraint("Vertical", 1, 3, 3, 3),
    Sketcher.Constraint("Vertical", 4, 3, 5, 3),
    Sketcher.Constraint("Vertical", 7, 3, 8, 3),
    Sketcher.Constraint("Vertical", 6, 3, 9, 3),
    Sketcher.Constraint("Diameter", 0, Q("4.8 mm")),
    Sketcher.Constraint("DistanceY", 0, 3, 2, 3, Q("3.51 in")),
    Sketcher.Constraint("DistanceX", -1, 1, 7, 3, Q("0.465 in")),
    Sketcher.Constraint("DistanceX", -1, 1, 0, 3, Q("24.3346 in")),
    Sketcher.Constraint("DistanceY", -1, 1, 0, 3, Q("1.5004 in")),
    Sketcher.Constraint("DistanceX", -1, 1, 1, 3, Q("18.3672 in")),
    Sketcher.Constraint("DistanceX", -1, 1, 4, 3, Q("12.3998 in")),
    Sketcher.Constraint("DistanceX", -1, 1, 6, 3, Q("6.4324 in")),
])
doc.recompute()
hole = body.newObject("PartDesign::Hole", "Hole")
hole.Profile = sketch9
hole.ThreadType = "None"
hole.Diameter = 4.8
hole.DepthType = "ThroughAll"

doc.recompute()
